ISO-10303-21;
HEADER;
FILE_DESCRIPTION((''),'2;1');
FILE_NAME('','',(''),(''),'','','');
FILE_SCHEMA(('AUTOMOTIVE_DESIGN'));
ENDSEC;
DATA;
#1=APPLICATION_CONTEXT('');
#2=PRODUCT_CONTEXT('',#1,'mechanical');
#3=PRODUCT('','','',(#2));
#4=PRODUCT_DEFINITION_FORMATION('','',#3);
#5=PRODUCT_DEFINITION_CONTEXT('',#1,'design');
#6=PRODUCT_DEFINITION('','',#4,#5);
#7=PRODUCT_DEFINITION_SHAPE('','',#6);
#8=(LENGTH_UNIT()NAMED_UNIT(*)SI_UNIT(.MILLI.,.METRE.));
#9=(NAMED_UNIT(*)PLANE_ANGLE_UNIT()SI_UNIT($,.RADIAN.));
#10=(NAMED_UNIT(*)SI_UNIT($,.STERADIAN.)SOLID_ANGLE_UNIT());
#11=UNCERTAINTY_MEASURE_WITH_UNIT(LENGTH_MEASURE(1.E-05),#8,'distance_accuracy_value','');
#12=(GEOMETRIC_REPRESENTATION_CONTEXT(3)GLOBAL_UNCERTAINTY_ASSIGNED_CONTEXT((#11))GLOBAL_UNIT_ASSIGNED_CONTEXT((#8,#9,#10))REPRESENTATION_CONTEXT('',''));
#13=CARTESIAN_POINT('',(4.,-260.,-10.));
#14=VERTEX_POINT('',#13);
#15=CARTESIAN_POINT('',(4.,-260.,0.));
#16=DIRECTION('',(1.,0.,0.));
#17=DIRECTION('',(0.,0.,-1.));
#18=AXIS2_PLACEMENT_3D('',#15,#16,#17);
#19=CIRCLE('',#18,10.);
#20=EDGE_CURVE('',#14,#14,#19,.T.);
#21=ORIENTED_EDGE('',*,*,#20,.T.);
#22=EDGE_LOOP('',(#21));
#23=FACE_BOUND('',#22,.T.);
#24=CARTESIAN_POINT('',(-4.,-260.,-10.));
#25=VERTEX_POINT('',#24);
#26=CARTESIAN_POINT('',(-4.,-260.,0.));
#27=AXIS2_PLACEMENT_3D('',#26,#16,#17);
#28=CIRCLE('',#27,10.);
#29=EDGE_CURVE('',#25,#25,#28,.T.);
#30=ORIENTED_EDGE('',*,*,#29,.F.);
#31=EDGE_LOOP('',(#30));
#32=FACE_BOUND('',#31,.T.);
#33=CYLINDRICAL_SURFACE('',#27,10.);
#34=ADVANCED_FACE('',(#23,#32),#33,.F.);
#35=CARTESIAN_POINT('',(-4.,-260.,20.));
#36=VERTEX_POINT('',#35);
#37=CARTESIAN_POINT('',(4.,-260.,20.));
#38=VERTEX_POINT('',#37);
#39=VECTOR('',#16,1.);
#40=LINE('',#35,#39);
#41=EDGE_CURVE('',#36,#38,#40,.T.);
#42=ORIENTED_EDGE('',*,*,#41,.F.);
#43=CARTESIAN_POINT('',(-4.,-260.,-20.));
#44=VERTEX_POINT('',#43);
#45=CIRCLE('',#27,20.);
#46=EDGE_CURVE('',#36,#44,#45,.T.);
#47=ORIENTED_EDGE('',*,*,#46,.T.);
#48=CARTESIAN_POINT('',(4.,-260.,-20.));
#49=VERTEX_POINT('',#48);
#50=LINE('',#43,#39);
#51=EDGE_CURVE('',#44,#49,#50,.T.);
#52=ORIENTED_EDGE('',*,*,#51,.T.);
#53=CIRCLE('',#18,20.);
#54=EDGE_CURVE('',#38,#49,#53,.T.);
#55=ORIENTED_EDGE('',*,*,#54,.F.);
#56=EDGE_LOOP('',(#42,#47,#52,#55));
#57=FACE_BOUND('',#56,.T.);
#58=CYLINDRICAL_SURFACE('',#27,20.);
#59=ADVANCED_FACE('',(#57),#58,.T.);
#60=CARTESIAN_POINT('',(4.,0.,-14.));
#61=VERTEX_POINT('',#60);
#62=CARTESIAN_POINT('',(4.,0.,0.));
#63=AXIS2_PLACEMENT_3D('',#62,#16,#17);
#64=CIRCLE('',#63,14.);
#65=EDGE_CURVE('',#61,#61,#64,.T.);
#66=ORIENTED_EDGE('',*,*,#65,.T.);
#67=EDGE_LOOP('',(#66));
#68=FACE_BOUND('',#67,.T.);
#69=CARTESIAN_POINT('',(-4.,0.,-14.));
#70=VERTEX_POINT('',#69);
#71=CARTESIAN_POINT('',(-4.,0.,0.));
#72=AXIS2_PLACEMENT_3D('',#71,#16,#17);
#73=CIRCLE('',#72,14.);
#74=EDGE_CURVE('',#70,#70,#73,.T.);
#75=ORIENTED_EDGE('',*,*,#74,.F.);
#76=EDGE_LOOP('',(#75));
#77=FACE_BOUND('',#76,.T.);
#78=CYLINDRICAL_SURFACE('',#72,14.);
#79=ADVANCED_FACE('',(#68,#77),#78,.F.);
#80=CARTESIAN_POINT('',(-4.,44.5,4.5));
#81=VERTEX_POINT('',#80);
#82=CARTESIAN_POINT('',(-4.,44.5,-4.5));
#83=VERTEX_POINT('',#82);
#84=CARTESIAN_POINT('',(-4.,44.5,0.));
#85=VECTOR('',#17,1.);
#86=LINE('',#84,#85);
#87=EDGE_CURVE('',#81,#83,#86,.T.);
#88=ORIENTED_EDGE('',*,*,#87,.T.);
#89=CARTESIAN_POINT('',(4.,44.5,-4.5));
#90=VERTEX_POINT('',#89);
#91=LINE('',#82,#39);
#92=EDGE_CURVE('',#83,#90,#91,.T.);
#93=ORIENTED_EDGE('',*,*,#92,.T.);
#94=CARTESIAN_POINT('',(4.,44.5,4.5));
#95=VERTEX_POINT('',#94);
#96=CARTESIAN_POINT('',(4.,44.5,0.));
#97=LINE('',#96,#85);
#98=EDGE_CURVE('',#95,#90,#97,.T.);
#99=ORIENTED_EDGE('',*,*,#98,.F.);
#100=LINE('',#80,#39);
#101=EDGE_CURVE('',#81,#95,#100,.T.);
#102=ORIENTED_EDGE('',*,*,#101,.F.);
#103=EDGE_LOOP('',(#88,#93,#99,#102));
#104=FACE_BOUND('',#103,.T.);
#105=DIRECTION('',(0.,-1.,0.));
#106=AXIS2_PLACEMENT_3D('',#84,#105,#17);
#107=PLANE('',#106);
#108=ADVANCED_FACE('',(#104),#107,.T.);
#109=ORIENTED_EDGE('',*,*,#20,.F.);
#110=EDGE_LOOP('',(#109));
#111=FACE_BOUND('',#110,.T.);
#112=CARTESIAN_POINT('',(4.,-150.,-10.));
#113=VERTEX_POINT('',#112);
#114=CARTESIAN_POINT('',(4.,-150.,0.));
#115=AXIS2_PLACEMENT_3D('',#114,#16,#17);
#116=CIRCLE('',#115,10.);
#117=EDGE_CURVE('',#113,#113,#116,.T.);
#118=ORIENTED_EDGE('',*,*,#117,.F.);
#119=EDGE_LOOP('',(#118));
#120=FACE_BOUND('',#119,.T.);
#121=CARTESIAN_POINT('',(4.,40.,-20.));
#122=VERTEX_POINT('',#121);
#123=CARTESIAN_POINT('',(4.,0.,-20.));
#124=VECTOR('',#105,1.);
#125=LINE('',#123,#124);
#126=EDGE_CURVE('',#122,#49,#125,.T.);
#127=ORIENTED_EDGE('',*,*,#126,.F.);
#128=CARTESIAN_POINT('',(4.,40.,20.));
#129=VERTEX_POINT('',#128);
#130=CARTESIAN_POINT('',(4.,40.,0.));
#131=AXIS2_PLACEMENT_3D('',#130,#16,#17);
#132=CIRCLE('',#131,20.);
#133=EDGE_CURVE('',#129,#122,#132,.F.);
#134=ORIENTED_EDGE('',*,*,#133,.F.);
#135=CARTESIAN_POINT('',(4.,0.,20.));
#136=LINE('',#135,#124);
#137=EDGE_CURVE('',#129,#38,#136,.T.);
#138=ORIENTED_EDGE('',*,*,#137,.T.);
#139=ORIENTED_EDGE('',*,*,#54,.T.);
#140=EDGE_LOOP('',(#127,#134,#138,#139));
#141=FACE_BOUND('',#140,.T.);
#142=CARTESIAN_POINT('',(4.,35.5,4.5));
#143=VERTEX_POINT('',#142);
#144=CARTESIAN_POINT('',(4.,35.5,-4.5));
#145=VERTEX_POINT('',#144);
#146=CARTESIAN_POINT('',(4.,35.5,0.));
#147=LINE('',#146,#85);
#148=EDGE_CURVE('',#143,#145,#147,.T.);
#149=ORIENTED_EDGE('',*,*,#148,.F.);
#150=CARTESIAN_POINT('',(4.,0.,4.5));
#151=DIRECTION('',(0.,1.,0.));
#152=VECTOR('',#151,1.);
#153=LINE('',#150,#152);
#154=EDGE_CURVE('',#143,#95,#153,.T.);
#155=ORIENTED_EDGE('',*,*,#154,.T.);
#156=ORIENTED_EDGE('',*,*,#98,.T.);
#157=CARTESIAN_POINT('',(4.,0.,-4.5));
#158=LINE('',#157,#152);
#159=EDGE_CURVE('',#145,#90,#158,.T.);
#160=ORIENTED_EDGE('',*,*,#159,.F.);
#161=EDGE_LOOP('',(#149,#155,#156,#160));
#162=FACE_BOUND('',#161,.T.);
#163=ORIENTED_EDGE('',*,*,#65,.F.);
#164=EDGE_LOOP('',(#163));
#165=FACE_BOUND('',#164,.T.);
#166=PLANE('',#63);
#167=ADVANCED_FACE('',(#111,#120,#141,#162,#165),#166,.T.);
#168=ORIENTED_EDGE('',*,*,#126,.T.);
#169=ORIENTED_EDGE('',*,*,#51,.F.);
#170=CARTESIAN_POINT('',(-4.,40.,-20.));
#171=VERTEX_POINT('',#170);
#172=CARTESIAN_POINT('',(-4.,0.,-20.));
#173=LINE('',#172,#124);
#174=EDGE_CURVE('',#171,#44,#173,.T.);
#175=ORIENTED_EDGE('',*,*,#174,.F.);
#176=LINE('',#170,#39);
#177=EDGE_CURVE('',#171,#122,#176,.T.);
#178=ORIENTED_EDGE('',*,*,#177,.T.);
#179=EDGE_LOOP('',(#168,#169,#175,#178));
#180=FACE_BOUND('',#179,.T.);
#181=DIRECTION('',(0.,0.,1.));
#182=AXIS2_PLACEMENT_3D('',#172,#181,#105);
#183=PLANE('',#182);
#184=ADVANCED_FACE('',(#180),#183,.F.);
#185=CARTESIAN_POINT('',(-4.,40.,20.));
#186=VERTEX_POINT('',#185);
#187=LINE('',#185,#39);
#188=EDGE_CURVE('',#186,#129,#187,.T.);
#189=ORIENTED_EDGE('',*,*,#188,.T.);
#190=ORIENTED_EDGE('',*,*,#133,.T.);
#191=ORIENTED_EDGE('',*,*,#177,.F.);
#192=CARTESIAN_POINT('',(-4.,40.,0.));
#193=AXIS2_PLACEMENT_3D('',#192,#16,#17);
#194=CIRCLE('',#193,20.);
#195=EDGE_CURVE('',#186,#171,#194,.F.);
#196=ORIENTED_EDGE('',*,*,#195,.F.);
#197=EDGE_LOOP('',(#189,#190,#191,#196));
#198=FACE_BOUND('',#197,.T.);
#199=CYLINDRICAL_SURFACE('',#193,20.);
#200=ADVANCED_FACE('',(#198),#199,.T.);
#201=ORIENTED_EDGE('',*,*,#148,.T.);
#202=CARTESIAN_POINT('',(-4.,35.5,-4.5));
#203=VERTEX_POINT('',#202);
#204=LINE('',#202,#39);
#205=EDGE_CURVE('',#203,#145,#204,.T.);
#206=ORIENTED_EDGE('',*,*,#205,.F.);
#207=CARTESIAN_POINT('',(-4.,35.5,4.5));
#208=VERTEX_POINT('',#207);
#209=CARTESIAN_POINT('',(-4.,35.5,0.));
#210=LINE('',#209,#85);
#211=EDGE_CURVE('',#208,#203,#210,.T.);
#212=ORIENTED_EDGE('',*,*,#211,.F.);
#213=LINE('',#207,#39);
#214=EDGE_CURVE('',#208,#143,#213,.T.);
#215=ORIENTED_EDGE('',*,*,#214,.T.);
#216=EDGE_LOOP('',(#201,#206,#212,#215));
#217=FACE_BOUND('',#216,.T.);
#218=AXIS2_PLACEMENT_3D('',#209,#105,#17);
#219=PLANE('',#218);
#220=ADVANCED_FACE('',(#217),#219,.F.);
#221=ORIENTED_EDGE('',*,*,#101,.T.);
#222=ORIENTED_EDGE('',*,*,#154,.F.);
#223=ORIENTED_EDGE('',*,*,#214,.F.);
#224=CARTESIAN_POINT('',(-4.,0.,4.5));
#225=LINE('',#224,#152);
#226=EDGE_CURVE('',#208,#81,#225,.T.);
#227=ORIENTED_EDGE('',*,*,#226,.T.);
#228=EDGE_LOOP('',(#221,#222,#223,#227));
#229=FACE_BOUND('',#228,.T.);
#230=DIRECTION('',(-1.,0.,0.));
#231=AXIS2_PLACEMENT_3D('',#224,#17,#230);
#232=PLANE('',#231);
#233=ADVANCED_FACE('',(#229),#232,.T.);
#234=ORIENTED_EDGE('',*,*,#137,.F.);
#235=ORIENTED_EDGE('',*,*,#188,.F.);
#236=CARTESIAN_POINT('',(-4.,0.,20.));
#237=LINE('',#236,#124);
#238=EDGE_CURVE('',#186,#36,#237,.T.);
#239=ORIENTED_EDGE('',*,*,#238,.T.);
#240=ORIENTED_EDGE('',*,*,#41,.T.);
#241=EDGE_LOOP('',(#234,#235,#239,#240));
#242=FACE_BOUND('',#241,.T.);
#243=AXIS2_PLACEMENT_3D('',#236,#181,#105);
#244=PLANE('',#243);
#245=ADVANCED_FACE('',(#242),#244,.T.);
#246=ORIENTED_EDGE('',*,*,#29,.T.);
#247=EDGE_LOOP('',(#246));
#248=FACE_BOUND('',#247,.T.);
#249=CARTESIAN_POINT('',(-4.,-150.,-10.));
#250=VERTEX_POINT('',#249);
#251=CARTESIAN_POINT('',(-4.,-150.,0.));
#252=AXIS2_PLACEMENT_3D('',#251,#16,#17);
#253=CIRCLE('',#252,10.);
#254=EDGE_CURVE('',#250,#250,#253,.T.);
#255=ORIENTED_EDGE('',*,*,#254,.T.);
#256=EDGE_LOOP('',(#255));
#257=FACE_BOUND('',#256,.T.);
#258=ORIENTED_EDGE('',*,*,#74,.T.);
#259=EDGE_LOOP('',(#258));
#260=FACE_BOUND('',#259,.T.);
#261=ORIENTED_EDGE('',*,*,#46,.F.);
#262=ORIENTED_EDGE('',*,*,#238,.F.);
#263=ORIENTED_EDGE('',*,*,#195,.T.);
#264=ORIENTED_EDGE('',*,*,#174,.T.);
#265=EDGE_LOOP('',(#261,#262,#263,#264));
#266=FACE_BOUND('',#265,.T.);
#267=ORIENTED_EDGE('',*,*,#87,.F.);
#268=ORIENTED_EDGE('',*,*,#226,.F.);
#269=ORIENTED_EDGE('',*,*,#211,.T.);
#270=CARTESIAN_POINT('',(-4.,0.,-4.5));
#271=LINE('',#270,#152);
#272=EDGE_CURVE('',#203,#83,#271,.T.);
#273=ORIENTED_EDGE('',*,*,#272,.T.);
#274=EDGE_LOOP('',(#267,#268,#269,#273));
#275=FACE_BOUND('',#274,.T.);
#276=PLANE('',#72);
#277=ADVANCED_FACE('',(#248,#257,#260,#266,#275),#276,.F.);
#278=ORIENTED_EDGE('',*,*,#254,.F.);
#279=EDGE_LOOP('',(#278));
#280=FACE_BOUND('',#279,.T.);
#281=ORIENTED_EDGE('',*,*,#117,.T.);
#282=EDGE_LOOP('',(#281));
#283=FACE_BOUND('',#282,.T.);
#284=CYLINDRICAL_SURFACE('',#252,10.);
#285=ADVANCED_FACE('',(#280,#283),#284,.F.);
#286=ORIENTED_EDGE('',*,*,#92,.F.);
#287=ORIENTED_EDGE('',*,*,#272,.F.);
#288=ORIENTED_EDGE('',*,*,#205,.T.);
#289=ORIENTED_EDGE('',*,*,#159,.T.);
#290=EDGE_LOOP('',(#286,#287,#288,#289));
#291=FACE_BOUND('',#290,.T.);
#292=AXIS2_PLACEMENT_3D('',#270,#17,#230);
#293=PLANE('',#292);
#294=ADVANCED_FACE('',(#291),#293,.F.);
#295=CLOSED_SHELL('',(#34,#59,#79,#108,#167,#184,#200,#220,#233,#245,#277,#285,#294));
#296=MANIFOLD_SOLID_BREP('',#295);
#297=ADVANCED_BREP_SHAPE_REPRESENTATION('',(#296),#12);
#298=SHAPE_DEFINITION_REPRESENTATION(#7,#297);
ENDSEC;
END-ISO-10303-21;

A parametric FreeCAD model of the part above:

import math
import FreeCAD as App
import Part
import Sketcher

V = App.Vector
Q = App.Units.Quantity


def add_polygon(sketch, points):
    """Adds a closed chain of lines whose ends are joined by coincident constraints."""
    first, n = sketch.GeometryCount, len(points)
    for a, b in zip(points, points[1:] + points[:1]):
        sketch.addGeometry(Part.LineSegment(App.Vector(*a, 0), App.Vector(*b, 0)), False)
    for i in range(n):
        sketch.addConstraint(Sketcher.Constraint("Coincident", first + i, 2, first + (i + 1) % n, 1))

doc = App.newDocument("Part")
body = doc.addObject("PartDesign::Body", "Body")

# Sketch on YZ plane
sketch1 = body.newObject("Sketcher::SketchObject", "Sketch")
sketch1.AttachmentSupport = (doc.getObject("YZ_Plane"), [""])
sketch1.MapMode = "FlatFace"
sketch1.addGeometry(Part.LineSegment(V(40, 20, 0), V(-260, 20, 0)), False)  # 0
sketch1.addGeometry(Part.ArcOfCircle(Part.Circle(V(-260, 0, 0), V(0, 0, 1), 20), math.radians(90), math.radians(270)), False)  # 1
sketch1.addGeometry(Part.LineSegment(V(-260, -20, 0), V(40, -20, 0)), False)  # 2
sketch1.addGeometry(Part.ArcOfCircle(Part.Circle(V(40, 0, 0), V(0, 0, 1), 20), math.radians(-90), math.radians(90)), False)  # 3
sketch1.addGeometry(Part.Circle(V(-260, 0, 0), V(0, 0, 1), 10), False)  # 4
sketch1.addGeometry(Part.Circle(V(-150, 0, 0), V(0, 0, 1), 10), False)  # 5
sketch1.addGeometry(Part.Circle(V(0, 0, 0), V(0, 0, 1), 14), False)  # 6
add_polygon(sketch1, [(36, -4), (36, 4), (44, 4), (44, -4)])  # lines 7-10
sketch1.addConstraint([
    Sketcher.Constraint("Tangent", 0, 2, 1, 1),
    Sketcher.Constraint("Tangent", 1, 2, 2, 1),
    Sketcher.Constraint("Tangent", 2, 2, 3, 1),
    Sketcher.Constraint("Tangent", 3, 2, 0, 1),
    Sketcher.Constraint("Horizontal", 0),
    Sketcher.Constraint("Horizontal", 2),
    Sketcher.Constraint("Vertical", 7),
    Sketcher.Constraint("Horizontal", 8),
    Sketcher.Constraint("Vertical", 9),
    Sketcher.Constraint("Horizontal", 10),
    Sketcher.Constraint("Coincident", 6, 3, -1, 1),
    Sketcher.Constraint("Coincident", 4, 3, 1, 3),
    Sketcher.Constraint("Equal", 4, 5),
    Sketcher.Constraint("PointOnObject", 1, 3, -1),
    Sketcher.Constraint("PointOnObject", 5, 3, -1),
    Sketcher.Constraint("Equal", 10, 7),
    Sketcher.Constraint("Diameter", 4, Q("20 mm")),
    Sketcher.Constraint("Diameter", 6, Q("28 mm")),
    Sketcher.Constraint("Radius", 1, Q("20 mm")),
    Sketcher.Constraint("DistanceX", 0, 2, 0, 1, Q("300 mm")),
    Sketcher.Constraint("DistanceX", 8, 1, 8, 2, Q("9 mm")),
    Sketcher.Constraint("DistanceX", 1, 3, -1, 1, Q("260 mm")),
    Sketcher.Constraint("DistanceX", 5, 3, -1, 1, Q("150 mm")),
    Sketcher.Constraint("DistanceX", -1, 1, 7, 2, Q("35.5 mm")),
    Sketcher.Constraint("DistanceY", -1, 1, 7, 2, Q("4.5 mm")),
])
pad1 = body.newObject("PartDesign::Pad", "Pad")
pad1.Profile = sketch1
pad1.Type = "TwoLengths"
pad1.Length = 4
pad1.Length2 = 4

doc.recompute()
